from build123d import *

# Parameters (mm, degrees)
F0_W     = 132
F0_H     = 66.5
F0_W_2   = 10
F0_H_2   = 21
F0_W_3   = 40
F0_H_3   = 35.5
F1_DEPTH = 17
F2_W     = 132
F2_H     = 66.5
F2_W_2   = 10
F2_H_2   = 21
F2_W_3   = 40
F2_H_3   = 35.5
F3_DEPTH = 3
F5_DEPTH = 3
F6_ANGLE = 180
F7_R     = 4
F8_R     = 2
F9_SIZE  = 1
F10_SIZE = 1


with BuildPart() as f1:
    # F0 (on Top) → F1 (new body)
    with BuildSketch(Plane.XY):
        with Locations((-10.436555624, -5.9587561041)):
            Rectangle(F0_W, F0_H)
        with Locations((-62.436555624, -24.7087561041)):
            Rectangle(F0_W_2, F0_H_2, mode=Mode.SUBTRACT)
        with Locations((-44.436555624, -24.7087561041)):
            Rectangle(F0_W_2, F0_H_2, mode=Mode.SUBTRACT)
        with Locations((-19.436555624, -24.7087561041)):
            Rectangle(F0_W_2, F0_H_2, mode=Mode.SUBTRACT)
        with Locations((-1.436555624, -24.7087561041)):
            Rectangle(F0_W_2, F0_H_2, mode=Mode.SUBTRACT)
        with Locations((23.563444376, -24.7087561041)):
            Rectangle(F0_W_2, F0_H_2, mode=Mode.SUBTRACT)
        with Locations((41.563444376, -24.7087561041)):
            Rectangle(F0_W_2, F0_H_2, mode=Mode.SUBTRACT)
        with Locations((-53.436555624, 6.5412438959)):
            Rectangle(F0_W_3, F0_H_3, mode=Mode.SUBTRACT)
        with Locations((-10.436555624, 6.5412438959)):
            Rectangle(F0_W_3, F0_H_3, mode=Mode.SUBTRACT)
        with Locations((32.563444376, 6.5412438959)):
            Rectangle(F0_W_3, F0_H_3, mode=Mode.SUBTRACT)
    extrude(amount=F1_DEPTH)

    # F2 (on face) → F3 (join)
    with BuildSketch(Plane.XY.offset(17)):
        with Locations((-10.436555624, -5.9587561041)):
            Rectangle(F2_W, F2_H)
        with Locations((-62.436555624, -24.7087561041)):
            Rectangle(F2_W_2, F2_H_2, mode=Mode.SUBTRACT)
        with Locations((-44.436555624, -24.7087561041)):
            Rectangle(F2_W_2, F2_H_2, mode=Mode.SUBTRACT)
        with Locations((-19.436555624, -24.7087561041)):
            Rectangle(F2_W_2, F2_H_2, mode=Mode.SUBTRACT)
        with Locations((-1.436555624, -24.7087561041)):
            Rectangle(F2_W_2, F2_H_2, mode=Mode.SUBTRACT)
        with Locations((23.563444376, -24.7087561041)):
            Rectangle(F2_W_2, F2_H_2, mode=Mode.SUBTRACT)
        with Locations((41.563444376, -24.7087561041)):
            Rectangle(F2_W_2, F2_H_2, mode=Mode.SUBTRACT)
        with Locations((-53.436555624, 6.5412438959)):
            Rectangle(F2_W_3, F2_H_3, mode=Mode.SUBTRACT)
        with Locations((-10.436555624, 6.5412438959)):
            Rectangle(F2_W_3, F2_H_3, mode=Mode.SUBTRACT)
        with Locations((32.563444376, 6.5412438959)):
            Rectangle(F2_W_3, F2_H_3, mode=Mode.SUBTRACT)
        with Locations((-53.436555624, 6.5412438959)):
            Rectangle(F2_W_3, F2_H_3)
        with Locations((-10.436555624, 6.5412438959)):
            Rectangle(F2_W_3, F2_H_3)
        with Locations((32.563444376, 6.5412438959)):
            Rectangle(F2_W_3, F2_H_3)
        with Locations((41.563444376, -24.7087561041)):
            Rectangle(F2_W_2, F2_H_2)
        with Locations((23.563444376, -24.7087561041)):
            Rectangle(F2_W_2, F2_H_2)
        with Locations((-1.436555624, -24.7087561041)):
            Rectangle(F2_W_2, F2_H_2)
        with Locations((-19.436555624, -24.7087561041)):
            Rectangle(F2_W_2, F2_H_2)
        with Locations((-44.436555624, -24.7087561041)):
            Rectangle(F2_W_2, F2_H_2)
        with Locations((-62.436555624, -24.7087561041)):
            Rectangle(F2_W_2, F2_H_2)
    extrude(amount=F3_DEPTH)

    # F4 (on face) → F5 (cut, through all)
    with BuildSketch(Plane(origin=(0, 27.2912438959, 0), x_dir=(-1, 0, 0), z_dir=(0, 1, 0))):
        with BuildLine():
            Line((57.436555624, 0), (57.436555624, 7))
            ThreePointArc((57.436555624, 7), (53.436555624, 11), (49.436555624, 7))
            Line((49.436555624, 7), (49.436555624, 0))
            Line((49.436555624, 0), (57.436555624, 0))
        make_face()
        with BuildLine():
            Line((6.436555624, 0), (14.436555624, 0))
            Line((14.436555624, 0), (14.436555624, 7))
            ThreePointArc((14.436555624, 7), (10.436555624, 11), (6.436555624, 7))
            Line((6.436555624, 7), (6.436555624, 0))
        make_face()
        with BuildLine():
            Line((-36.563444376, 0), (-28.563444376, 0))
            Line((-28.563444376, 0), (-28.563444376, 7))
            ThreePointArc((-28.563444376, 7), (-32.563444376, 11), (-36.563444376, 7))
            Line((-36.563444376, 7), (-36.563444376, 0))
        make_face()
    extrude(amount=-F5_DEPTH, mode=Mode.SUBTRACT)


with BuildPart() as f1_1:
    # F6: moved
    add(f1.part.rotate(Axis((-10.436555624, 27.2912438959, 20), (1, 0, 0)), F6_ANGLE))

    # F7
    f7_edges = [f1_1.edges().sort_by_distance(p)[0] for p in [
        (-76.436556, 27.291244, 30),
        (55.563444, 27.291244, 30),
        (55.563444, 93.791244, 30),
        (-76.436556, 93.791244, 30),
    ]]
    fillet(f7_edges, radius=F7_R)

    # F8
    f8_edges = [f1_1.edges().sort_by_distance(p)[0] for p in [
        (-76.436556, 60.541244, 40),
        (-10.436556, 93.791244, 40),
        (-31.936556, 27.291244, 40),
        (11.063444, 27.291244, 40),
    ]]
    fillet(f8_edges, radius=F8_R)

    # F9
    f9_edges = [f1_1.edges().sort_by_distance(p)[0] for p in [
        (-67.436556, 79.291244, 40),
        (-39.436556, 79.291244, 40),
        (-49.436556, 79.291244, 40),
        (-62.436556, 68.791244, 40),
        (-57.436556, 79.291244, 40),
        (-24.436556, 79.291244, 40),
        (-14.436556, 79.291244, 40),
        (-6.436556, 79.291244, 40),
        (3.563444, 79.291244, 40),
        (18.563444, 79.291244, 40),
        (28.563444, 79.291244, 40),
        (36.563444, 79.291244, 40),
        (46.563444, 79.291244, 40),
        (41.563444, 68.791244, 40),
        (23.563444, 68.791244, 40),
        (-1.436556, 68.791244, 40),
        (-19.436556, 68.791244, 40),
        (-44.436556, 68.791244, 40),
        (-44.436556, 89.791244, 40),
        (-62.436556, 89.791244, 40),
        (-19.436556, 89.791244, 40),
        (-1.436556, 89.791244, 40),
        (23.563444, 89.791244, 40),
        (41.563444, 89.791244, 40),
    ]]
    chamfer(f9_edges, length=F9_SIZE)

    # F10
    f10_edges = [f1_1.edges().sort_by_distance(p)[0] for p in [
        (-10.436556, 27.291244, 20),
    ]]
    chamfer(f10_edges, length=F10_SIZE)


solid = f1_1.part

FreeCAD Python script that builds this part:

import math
import FreeCAD as App
import Part
import Sketcher
from FreeCAD import Vector


def edges_at(feature, points):
    """Names of the edges that pass closest to the given points."""
    edges = feature.Shape.Edges
    near = lambda p: min(range(len(edges)), key=lambda i: edges[i].distToShape(Part.Vertex(*p))[0])
    return sorted({f"Edge{near(p) + 1}" for p in points})


def add_polygon(sketch, points):
    """Adds a closed chain of lines whose ends are joined by coincident constraints."""
    first, n = sketch.GeometryCount, len(points)
    for a, b in zip(points, points[1:] + points[:1]):
        sketch.addGeometry(Part.LineSegment(App.Vector(*a, 0), App.Vector(*b, 0)), False)
    for i in range(n):
        sketch.addConstraint(Sketcher.Constraint("Coincident", first + i, 2, first + (i + 1) % n, 1))

doc = App.newDocument("Part")
params = doc.addObject("Spreadsheet::Sheet", "Params")
for row, (alias, value) in enumerate([
    ("sketch1_width", "132 mm"),
    ("sketch1_width2", "10 mm"),
    ("sketch1_width3", "40 mm"),
    ("sketch1_height", "21 mm"),
    ("sketch1_height2", "66.5 mm"),
    ("pad1_length", "17 mm"),
    ("sketch2_width", "132 mm"),
    ("sketch2_height", "66.5 mm"),
    ("pad2_length", "3 mm"),
    ("sketch3_radius", "4 mm"),
    ("sketch3_height", "7 mm"),
    ("pocket1_length", "3 mm"),
    ("fillet_radius", "4 mm"),
    ("fillet2_radius", "2 mm"),
    ("chamfer_size", "1 mm"),
    ("chamfer2_size", "1 mm"),
], start=1):
    params.set(f"A{row}", alias)
    params.set(f"B{row}", "=" + value)
    params.setAlias(f"B{row}", alias)

body = doc.addObject("PartDesign::Body", "Body")

# Sketch on XY plane
sketch1 = body.newObject("Sketcher::SketchObject", "Sketch")
sketch1.AttachmentSupport = (doc.getObject("XY_Plane"), [""])
sketch1.MapMode = "FlatFace"
add_polygon(sketch1, [(-76, 27), (-76, -39), (56, -39), (56, 27)])  # lines 0-3
add_polygon(sketch1, [(-57, -35), (-67, -35), (-67, -14), (-57, -14)])  # lines 4-7
add_polygon(sketch1, [(-39, -35), (-49, -35), (-49, -14), (-39, -14)])  # lines 8-11
add_polygon(sketch1, [(-14, -35), (-24, -35), (-24, -14), (-14, -14)])  # lines 12-15
add_polygon(sketch1, [(4, -35), (-6, -35), (-6, -14), (4, -14)])  # lines 16-19
add_polygon(sketch1, [(29, -35), (19, -35), (19, -14), (29, -14)])  # lines 20-23
add_polygon(sketch1, [(47, -35), (37, -35), (37, -14), (47, -14)])  # lines 24-27
add_polygon(sketch1, [(-33, -11), (-73, -11), (-73, 24), (-33, 24)])  # lines 28-31
add_polygon(sketch1, [(10, -11), (-30, -11), (-30, 24), (10, 24)])  # lines 32-35
add_polygon(sketch1, [(53, -11), (13, -11), (13, 24), (53, 24)])  # lines 36-39
sketch1.addConstraint(Sketcher.Constraint("Vertical", 0))
sketch1.addConstraint(Sketcher.Constraint("Horizontal", 1))
sketch1.addConstraint(Sketcher.Constraint("Vertical", 2))
sketch1.addConstraint(Sketcher.Constraint("Horizontal", 3))
sketch1.addConstraint(Sketcher.Constraint("Horizontal", 4))
sketch1.addConstraint(Sketcher.Constraint("Vertical", 5))
sketch1.addConstraint(Sketcher.Constraint("Horizontal", 6))
sketch1.addConstraint(Sketcher.Constraint("Vertical", 7))
sketch1.addConstraint(Sketcher.Constraint("Horizontal", 8))
sketch1.addConstraint(Sketcher.Constraint("Vertical", 9))
sketch1.addConstraint(Sketcher.Constraint("Horizontal", 10))
sketch1.addConstraint(Sketcher.Constraint("Vertical", 11))
sketch1.addConstraint(Sketcher.Constraint("Horizontal", 12))
sketch1.addConstraint(Sketcher.Constraint("Vertical", 13))
sketch1.addConstraint(Sketcher.Constraint("Horizontal", 14))
sketch1.addConstraint(Sketcher.Constraint("Vertical", 15))
sketch1.addConstraint(Sketcher.Constraint("Horizontal", 16))
sketch1.addConstraint(Sketcher.Constraint("Vertical", 17))
sketch1.addConstraint(Sketcher.Constraint("Horizontal", 18))
sketch1.addConstraint(Sketcher.Constraint("Vertical", 19))
sketch1.addConstraint(Sketcher.Constraint("Horizontal", 20))
sketch1.addConstraint(Sketcher.Constraint("Vertical", 21))
sketch1.addConstraint(Sketcher.Constraint("Horizontal", 22))
sketch1.addConstraint(Sketcher.Constraint("Vertical", 23))
sketch1.addConstraint(Sketcher.Constraint("Horizontal", 24))
sketch1.addConstraint(Sketcher.Constraint("Vertical", 25))
sketch1.addConstraint(Sketcher.Constraint("Horizontal", 26))
sketch1.addConstraint(Sketcher.Constraint("Vertical", 27))
sketch1.addConstraint(Sketcher.Constraint("Horizontal", 28))
sketch1.addConstraint(Sketcher.Constraint("Vertical", 29))
sketch1.addConstraint(Sketcher.Constraint("Horizontal", 30))
sketch1.addConstraint(Sketcher.Constraint("Vertical", 31))
sketch1.addConstraint(Sketcher.Constraint("Horizontal", 32))
sketch1.addConstraint(Sketcher.Constraint("Vertical", 33))
sketch1.addConstraint(Sketcher.Constraint("Horizontal", 34))
sketch1.addConstraint(Sketcher.Constraint("Vertical", 35))
sketch1.addConstraint(Sketcher.Constraint("Horizontal", 36))
sketch1.addConstraint(Sketcher.Constraint("Vertical", 37))
sketch1.addConstraint(Sketcher.Constraint("Horizontal", 38))
sketch1.addConstraint(Sketcher.Constraint("Vertical", 39))
sketch1.addConstraint(Sketcher.Constraint("Horizontal", 7, 2, 8, 2))
sketch1.addConstraint(Sketcher.Constraint("Horizontal", 6, 2, 9, 2))
sketch1.addConstraint(Sketcher.Constraint("Horizontal", 11, 2, 12, 2))
sketch1.addConstraint(Sketcher.Constraint("Horizontal", 10, 2, 13, 2))
sketch1.addConstraint(Sketcher.Constraint("Horizontal", 15, 2, 16, 2))
sketch1.addConstraint(Sketcher.Constraint("Horizontal", 14, 2, 17, 2))
sketch1.addConstraint(Sketcher.Constraint("Horizontal", 19, 2, 20, 2))
sketch1.addConstraint(Sketcher.Constraint("Horizontal", 18, 2, 21, 2))
sketch1.addConstraint(Sketcher.Constraint("Horizontal", 23, 2, 24, 2))
sketch1.addConstraint(Sketcher.Constraint("Horizontal", 22, 2, 25, 2))
sketch1.addConstraint(Sketcher.Constraint("Horizontal", 31, 2, 32, 2))
sketch1.addConstraint(Sketcher.Constraint("Horizontal", 30, 2, 33, 2))
sketch1.addConstraint(Sketcher.Constraint("Horizontal", 35, 2, 36, 2))
sketch1.addConstraint(Sketcher.Constraint("Horizontal", 34, 2, 37, 2))
sketch1.addConstraint(Sketcher.Constraint("Equal", 6, 8))
sketch1.addConstraint(Sketcher.Constraint("Equal", 10, 12))
sketch1.addConstraint(Sketcher.Constraint("Equal", 14, 16))
sketch1.addConstraint(Sketcher.Constraint("Equal", 18, 20))
sketch1.addConstraint(Sketcher.Constraint("Equal", 22, 24))
sketch1.addConstraint(Sketcher.Constraint("Equal", 30, 32))
sketch1.addConstraint(Sketcher.Constraint("Equal", 34, 36))
sketch1.addConstraint(Sketcher.Constraint("DistanceX", 1, 1, 1, 2, 132.0))
sketch1.addConstraint(Sketcher.Constraint("DistanceX", 4, 2, 4, 1, 10.0))
sketch1.addConstraint(Sketcher.Constraint("DistanceX", 28, 2, 28, 1, 40.0))
sketch1.addConstraint(Sketcher.Constraint("DistanceY", 5, 1, 5, 2, 21.0))
sketch1.addConstraint(Sketcher.Constraint("DistanceY", 0, 2, 0, 1, 66.5))
sketch1.addConstraint(Sketcher.Constraint("DistanceY", 29, 1, 29, 2, 35.5))
sketch1.addConstraint(Sketcher.Constraint("DistanceX", 0, 2, 4, 2, 9.0))
sketch1.addConstraint(Sketcher.Constraint("DistanceY", 0, 2, 4, 2, 4.0))
sketch1.addConstraint(Sketcher.Constraint("DistanceX", 7, 2, 8, 2, 8.0))
sketch1.addConstraint(Sketcher.Constraint("DistanceX", 11, 2, 12, 2, 15.0))
sketch1.addConstraint(Sketcher.Constraint("DistanceX", 15, 2, 16, 2, 8.0))
sketch1.addConstraint(Sketcher.Constraint("DistanceX", 19, 2, 20, 2, 15.0))
sketch1.addConstraint(Sketcher.Constraint("DistanceX", 23, 2, 24, 2, 8.0))
sketch1.addConstraint(Sketcher.Constraint("DistanceX", 28, 2, 5, 2, 6.0))
sketch1.addConstraint(Sketcher.Constraint("DistanceY", 5, 2, 28, 2, 3.0))
sketch1.addConstraint(Sketcher.Constraint("DistanceX", 31, 2, 32, 2, 3.0))
sketch1.addConstraint(Sketcher.Constraint("DistanceX", 35, 2, 36, 2, 3.0))
sketch1.addConstraint(Sketcher.Constraint("DistanceX", 0, 2, -1, 1, 76.436556))
sketch1.addConstraint(Sketcher.Constraint("DistanceY", 0, 2, -1, 1, 39.208756))
sketch1.setExpression("Constraints[101]", "Params.sketch1_width")
sketch1.setExpression("Constraints[102]", "Params.sketch1_width2")
sketch1.setExpression("Constraints[103]", "Params.sketch1_width3")
sketch1.setExpression("Constraints[104]", "Params.sketch1_height")
sketch1.setExpression("Constraints[105]", "Params.sketch1_height2")
pad1 = body.newObject("PartDesign::Pad", "Pad")
pad1.Profile = sketch1
pad1.setExpression("Length", "Params.pad1_length")

# Sketch on XY plane
sketch2 = body.newObject("Sketcher::SketchObject", "Sketch001")
sketch2.AttachmentSupport = (doc.getObject("XY_Plane"), [""])
sketch2.MapMode = "FlatFace"
sketch2.AttachmentOffset = App.Placement(Vector(0, 0, 17), App.Rotation())
add_polygon(sketch2, [(-76, 27), (-76, -39), (56, -39), (56, 27)])  # lines 0-3
sketch2.addConstraint(Sketcher.Constraint("Vertical", 0))
sketch2.addConstraint(Sketcher.Constraint("Horizontal", 1))
sketch2.addConstraint(Sketcher.Constraint("Vertical", 2))
sketch2.addConstraint(Sketcher.Constraint("Horizontal", 3))
sketch2.addConstraint(Sketcher.Constraint("DistanceX", 1, 1, 1, 2, 132.0))
sketch2.addConstraint(Sketcher.Constraint("DistanceY", 0, 2, 0, 1, 66.5))
sketch2.addConstraint(Sketcher.Constraint("DistanceX", 0, 2, -1, 1, 76.436556))
sketch2.addConstraint(Sketcher.Constraint("DistanceY", 0, 2, -1, 1, 39.208756))
sketch2.setExpression("Constraints[8]", "Params.sketch2_width")
sketch2.setExpression("Constraints[9]", "Params.sketch2_height")
pad2 = body.newObject("PartDesign::Pad", "Pad001")
pad2.Profile = sketch2
pad2.setExpression("Length", "Params.pad2_length")

# Sketch on XZ plane
sketch3 = body.newObject("Sketcher::SketchObject", "Sketch002")
sketch3.AttachmentSupport = (doc.getObject("XZ_Plane"), [""])
sketch3.MapMode = "FlatFace"
sketch3.AttachmentOffset = App.Placement(Vector(0, 0, -27.291244), App.Rotation())
sketch3.addGeometry(Part.LineSegment(Vector(-57.4, 0, 0), Vector(-57.4, 7, 0)), False)
sketch3.addGeometry(Part.ArcOfCircle(Part.Circle(Vector(-53.4, 7, 0), Vector(0, 0, 1), 4), math.radians(0), math.radians(180)), False)
sketch3.addGeometry(Part.LineSegment(Vector(-49.4, 7, 0), Vector(-49.4, 0, 0)), False)
sketch3.addGeometry(Part.LineSegment(Vector(-49.4, 0, 0), Vector(-57.4, 0, 0)), False)
sketch3.addGeometry(Part.LineSegment(Vector(-6.4, 0, 0), Vector(-14.4, 0, 0)), False)
sketch3.addGeometry(Part.LineSegment(Vector(-14.4, 0, 0), Vector(-14.4, 7, 0)), False)
sketch3.addGeometry(Part.ArcOfCircle(Part.Circle(Vector(-10.4, 7, 0), Vector(0, 0, 1), 4), math.radians(0), math.radians(180)), False)
sketch3.addGeometry(Part.LineSegment(Vector(-6.4, 7, 0), Vector(-6.4, 0, 0)), False)
sketch3.addGeometry(Part.LineSegment(Vector(36.6, 0, 0), Vector(28.6, 0, 0)), False)
sketch3.addGeometry(Part.LineSegment(Vector(28.6, 0, 0), Vector(28.6, 7, 0)), False)
sketch3.addGeometry(Part.ArcOfCircle(Part.Circle(Vector(32.6, 7, 0), Vector(0, 0, 1), 4), math.radians(0), math.radians(180)), False)
sketch3.addGeometry(Part.LineSegment(Vector(36.6, 7, 0), Vector(36.6, 0, 0)), False)
sketch3.addConstraint(Sketcher.Constraint("Tangent", 0, 2, 1, 2))
sketch3.addConstraint(Sketcher.Constraint("Tangent", 1, 1, 2, 1))
sketch3.addConstraint(Sketcher.Constraint("Coincident", 2, 2, 3, 1))
sketch3.addConstraint(Sketcher.Constraint("Coincident", 3, 2, 0, 1))
sketch3.addConstraint(Sketcher.Constraint("Coincident", 4, 2, 5, 1))
sketch3.addConstraint(Sketcher.Constraint("Tangent", 5, 2, 6, 2))
sketch3.addConstraint(Sketcher.Constraint("Tangent", 6, 1, 7, 1))
sketch3.addConstraint(Sketcher.Constraint("Coincident", 7, 2, 4, 1))
sketch3.addConstraint(Sketcher.Constraint("Coincident", 8, 2, 9, 1))
sketch3.addConstraint(Sketcher.Constraint("Tangent", 9, 2, 10, 2))
sketch3.addConstraint(Sketcher.Constraint("Tangent", 10, 1, 11, 1))
sketch3.addConstraint(Sketcher.Constraint("Coincident", 11, 2, 8, 1))
sketch3.addConstraint(Sketcher.Constraint("Vertical", 0))
sketch3.addConstraint(Sketcher.Constraint("Vertical", 2))
sketch3.addConstraint(Sketcher.Constraint("Horizontal", 3))
sketch3.addConstraint(Sketcher.Constraint("Horizontal", 4))
sketch3.addConstraint(Sketcher.Constraint("Vertical", 5))
sketch3.addConstraint(Sketcher.Constraint("Vertical", 7))
sketch3.addConstraint(Sketcher.Constraint("Horizontal", 8))
sketch3.addConstraint(Sketcher.Constraint("Vertical", 9))
sketch3.addConstraint(Sketcher.Constraint("Vertical", 11))
sketch3.addConstraint(Sketcher.Constraint("Equal", 1, 6))
sketch3.addConstraint(Sketcher.Constraint("Equal", 6, 10))
sketch3.addConstraint(Sketcher.Constraint("PointOnObject", 2, 2, -1))
sketch3.addConstraint(Sketcher.Constraint("PointOnObject", 4, 2, -1))
sketch3.addConstraint(Sketcher.Constraint("PointOnObject", 8, 2, -1))
sketch3.addConstraint(Sketcher.Constraint("Horizontal", 1, 3, 6, 3))
sketch3.addConstraint(Sketcher.Constraint("Horizontal", 6, 3, 10, 3))
sketch3.addConstraint(Sketcher.Constraint("Radius", 1, 4.0))
sketch3.addConstraint(Sketcher.Constraint("DistanceY", 0, 1, 0, 2, 7.0))
sketch3.addConstraint(Sketcher.Constraint("DistanceX", 1, 3, 6, 3, 43.0))
sketch3.addConstraint(Sketcher.Constraint("DistanceX", 6, 3, 10, 3, 43.0))
sketch3.addConstraint(Sketcher.Constraint("DistanceX", 1, 3, -1, 1, 53.436556))
sketch3.setExpression("Constraints[28]", "Params.sketch3_radius")
sketch3.setExpression("Constraints[29]", "Params.sketch3_height")
pocket1 = body.newObject("PartDesign::Pocket", "Pocket")
pocket1.Profile = sketch3
pocket1.setExpression("Length", "Params.pocket1_length")
pocket1.Reversed = True
body2 = doc.addObject("PartDesign::Body", "Body001")
doc.recompute()

body.Placement = App.Placement(Vector(0, 54.582488, 40), App.Rotation(Vector(1, 0, 0), 180))
boolean = body2.newObject("PartDesign::Boolean", "Boolean")
boolean.Type = "Fuse"
boolean.addObjects([body])
doc.recompute()

fillet = body2.newObject("PartDesign::Fillet", "Fillet")
fillet.Base = (boolean, edges_at(boolean, [
    (-76.437, 27.291, 30),
    (55.563, 27.291, 30),
    (55.563, 93.791, 30),
    (-76.437, 93.791, 30),
]))
fillet.setExpression("Radius", "Params.fillet_radius")
doc.recompute()

fillet2 = body2.newObject("PartDesign::Fillet", "Fillet001")
fillet2.Base = (fillet, edges_at(fillet, [
    (-76.437, 60.541, 40),
    (-10.437, 93.791, 40),
    (-31.937, 27.291, 40),
    (11.063, 27.291, 40),
]))
fillet2.setExpression("Radius", "Params.fillet2_radius")
doc.recompute()

chamfer = body2.newObject("PartDesign::Chamfer", "Chamfer")
chamfer.Base = (fillet2, edges_at(fillet2, [
    (-67.437, 79.291, 40),
    (-39.437, 79.291, 40),
    (-49.437, 79.291, 40),
    (-62.437, 68.791, 40),
    (-57.437, 79.291, 40),
    (-24.437, 79.291, 40),
    (-14.437, 79.291, 40),
    (-6.437, 79.291, 40),
    (3.563, 79.291, 40),
    (18.563, 79.291, 40),
    (28.563, 79.291, 40),
    (36.563, 79.291, 40),
    (46.563, 79.291, 40),
    (41.563, 68.791, 40),
    (23.563, 68.791, 40),
    (-1.437, 68.791, 40),
    (-19.437, 68.791, 40),
    (-44.437, 68.791, 40),
    (-44.437, 89.791, 40),
    (-62.437, 89.791, 40),
    (-19.437, 89.791, 40),
    (-1.437, 89.791, 40),
    (23.563, 89.791, 40),
    (41.563, 89.791, 40),
]))
chamfer.setExpression("Size", "Params.chamfer_size")
doc.recompute()

chamfer2 = body2.newObject("PartDesign::Chamfer", "Chamfer001")
chamfer2.Base = (chamfer, edges_at(chamfer, [(-10.437, 27.291, 20)]))
chamfer2.setExpression("Size", "Params.chamfer2_size")

doc.recompute()
